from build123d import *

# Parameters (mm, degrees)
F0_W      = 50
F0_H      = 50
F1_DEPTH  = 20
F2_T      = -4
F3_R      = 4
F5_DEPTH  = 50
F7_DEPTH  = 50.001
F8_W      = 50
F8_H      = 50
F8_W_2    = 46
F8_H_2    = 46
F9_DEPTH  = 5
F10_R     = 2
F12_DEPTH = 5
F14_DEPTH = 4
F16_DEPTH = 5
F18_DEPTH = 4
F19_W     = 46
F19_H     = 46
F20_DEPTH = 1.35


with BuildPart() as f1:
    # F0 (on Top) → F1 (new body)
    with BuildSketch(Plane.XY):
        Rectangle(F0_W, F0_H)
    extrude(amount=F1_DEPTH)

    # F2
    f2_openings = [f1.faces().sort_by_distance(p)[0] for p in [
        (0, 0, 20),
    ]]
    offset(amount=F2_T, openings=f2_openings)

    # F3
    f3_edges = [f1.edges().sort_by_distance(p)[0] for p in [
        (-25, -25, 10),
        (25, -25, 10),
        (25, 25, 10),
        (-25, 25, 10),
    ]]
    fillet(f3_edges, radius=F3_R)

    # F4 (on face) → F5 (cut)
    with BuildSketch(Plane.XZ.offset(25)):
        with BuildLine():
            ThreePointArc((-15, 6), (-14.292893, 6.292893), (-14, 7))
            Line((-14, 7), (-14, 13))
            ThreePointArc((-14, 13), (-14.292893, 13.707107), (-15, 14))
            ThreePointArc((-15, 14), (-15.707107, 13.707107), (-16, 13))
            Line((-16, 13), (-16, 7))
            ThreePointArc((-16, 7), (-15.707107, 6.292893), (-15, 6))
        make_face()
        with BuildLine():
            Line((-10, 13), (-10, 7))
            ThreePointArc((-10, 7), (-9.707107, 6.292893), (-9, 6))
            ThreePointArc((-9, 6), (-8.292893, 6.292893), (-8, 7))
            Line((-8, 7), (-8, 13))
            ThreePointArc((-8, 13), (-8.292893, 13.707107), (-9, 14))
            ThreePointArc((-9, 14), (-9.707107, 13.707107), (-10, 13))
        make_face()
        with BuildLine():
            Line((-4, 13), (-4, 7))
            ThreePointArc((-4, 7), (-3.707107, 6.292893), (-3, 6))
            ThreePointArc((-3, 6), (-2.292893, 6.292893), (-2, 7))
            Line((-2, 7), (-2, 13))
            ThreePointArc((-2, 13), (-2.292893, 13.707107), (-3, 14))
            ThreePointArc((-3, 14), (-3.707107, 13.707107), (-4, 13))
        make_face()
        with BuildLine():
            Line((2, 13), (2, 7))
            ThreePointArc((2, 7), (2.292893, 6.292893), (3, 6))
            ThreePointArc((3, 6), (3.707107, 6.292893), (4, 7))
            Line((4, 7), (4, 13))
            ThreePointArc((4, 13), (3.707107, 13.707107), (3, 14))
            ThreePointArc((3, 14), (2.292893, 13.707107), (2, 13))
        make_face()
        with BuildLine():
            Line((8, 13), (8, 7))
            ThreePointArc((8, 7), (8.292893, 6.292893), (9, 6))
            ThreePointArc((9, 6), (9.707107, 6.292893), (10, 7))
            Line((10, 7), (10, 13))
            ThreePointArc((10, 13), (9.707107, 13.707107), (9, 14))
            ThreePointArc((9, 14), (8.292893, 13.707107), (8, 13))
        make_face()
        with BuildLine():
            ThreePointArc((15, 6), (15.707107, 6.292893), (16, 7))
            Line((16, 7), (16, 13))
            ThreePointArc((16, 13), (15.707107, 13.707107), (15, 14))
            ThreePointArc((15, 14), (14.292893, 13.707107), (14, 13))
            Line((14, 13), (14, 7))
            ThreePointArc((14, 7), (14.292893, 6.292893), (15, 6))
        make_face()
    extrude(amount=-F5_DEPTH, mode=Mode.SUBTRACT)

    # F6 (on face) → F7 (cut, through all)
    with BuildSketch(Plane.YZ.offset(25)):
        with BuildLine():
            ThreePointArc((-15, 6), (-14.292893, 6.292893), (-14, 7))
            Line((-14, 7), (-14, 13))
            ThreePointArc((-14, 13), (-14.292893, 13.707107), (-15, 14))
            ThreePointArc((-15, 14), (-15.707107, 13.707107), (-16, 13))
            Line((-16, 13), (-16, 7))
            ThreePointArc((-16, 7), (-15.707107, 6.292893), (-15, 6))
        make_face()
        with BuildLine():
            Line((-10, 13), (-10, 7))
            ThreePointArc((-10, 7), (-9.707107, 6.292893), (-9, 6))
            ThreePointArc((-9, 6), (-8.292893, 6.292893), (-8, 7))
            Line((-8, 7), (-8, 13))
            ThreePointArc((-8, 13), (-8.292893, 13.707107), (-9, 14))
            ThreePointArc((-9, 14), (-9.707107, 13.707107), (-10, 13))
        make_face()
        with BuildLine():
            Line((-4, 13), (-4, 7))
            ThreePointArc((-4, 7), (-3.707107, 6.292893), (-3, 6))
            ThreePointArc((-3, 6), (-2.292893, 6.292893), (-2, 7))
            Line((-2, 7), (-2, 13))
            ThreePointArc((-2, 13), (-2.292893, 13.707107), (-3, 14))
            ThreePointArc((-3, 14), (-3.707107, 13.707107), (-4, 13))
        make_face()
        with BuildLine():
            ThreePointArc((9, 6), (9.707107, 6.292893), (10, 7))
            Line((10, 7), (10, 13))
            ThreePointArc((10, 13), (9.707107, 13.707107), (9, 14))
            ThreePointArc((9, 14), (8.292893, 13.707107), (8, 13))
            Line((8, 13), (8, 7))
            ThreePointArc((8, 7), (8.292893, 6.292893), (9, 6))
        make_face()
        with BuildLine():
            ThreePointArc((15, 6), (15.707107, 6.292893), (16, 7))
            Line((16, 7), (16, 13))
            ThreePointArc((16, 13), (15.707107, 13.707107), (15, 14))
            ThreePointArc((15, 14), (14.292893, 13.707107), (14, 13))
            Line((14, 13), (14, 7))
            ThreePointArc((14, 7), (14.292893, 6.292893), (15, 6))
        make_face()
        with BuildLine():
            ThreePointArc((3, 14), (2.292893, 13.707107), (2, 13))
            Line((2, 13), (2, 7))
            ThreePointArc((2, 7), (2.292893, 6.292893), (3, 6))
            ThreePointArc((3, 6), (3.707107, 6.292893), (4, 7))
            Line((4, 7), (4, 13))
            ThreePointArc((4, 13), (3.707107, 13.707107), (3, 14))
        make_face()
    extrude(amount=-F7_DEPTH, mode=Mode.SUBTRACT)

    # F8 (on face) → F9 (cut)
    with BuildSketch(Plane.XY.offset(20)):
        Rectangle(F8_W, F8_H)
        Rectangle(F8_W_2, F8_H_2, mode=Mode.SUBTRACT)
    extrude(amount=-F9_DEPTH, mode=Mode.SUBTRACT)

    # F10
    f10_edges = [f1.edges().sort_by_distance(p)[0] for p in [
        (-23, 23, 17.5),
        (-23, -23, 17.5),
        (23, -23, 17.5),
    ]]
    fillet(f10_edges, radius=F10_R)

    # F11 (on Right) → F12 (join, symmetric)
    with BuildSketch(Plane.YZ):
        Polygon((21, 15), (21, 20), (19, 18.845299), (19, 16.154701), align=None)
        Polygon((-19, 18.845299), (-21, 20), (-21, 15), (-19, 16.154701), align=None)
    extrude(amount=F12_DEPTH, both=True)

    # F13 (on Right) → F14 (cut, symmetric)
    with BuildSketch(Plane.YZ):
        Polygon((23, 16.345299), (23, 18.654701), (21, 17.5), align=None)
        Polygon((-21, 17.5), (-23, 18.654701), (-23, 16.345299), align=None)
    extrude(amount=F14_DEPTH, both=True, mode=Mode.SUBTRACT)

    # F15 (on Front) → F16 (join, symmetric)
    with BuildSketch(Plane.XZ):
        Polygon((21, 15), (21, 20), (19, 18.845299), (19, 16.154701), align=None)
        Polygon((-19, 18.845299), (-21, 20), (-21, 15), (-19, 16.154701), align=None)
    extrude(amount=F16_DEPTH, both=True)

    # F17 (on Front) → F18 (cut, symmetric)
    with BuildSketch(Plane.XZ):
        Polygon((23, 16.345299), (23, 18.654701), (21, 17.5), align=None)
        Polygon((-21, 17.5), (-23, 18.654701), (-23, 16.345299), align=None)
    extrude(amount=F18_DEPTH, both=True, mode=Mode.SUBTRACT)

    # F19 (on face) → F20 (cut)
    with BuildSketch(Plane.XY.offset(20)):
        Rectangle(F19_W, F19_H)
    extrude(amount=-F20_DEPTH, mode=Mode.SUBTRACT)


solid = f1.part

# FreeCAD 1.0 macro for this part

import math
import FreeCAD as App
import Part
import Sketcher

V = App.Vector
Q = App.Units.Quantity


def edges_at(feature, points):
    """Names of the edges that pass closest to the given points."""
    edges = feature.Shape.Edges
    near = lambda p: min(range(len(edges)), key=lambda i: edges[i].distToShape(Part.Vertex(*p))[0])
    return sorted({f"Edge{near(p) + 1}" for p in points})


def faces_at(feature, points):
    """Names of the faces that lie closest to the given points."""
    faces = feature.Shape.Faces
    near = lambda p: min(range(len(faces)), key=lambda i: faces[i].distToShape(Part.Vertex(*p))[0])
    return sorted({f"Face{near(p) + 1}" for p in points})


def add_polygon(sketch, points):
    """Adds a closed chain of lines whose ends are joined by coincident constraints."""
    first, n = sketch.GeometryCount, len(points)
    for a, b in zip(points, points[1:] + points[:1]):
        sketch.addGeometry(Part.LineSegment(App.Vector(*a, 0), App.Vector(*b, 0)), False)
    for i in range(n):
        sketch.addConstraint(Sketcher.Constraint("Coincident", first + i, 2, first + (i + 1) % n, 1))

doc = App.newDocument("Part")
body = doc.addObject("PartDesign::Body", "Body")

# Sketch on XY plane
sketch1 = body.newObject("Sketcher::SketchObject", "Sketch")
sketch1.AttachmentSupport = (doc.getObject("XY_Plane"), [""])
sketch1.MapMode = "FlatFace"
add_polygon(sketch1, [(-25, 25), (-25, -25), (25, -25), (25, 25)])  # lines 0-3
sketch1.addConstraint(Sketcher.Constraint("Vertical", 0))
sketch1.addConstraint(Sketcher.Constraint("Horizontal", 1))
sketch1.addConstraint(Sketcher.Constraint("Vertical", 2))
sketch1.addConstraint(Sketcher.Constraint("Horizontal", 3))
sketch1.addConstraint(Sketcher.Constraint("Symmetric", 0, 2, 2, 2, -1, 1))
sketch1.addConstraint(Sketcher.Constraint("Equal", 3, 0))
sketch1.addConstraint(Sketcher.Constraint("DistanceX", 1, 1, 1, 2, 50.0))
pad1 = body.newObject("PartDesign::Pad", "Pad")
pad1.Profile = sketch1
pad1.Length = 20
doc.recompute()

thickness = body.newObject("PartDesign::Thickness", "Thickness")
thickness.Base = (pad1, faces_at(pad1, [(0, 0, 20)]))
thickness.Value = 4
thickness.Reversed = True
thickness.Join = "Arc"
doc.recompute()

fillet = body.newObject("PartDesign::Fillet", "Fillet")
fillet.Base = (thickness, edges_at(thickness, [
    (-25, -25, 10),
    (25, -25, 10),
    (25, 25, 10),
    (-25, 25, 10),
]))
fillet.Radius = 4

# Sketch on XZ plane
sketch2 = body.newObject("Sketcher::SketchObject", "Sketch001")
sketch2.AttachmentSupport = (doc.getObject("XZ_Plane"), [""])
sketch2.MapMode = "FlatFace"
sketch2.AttachmentOffset = App.Placement(V(0, 0, 25), App.Rotation())
sketch2.addGeometry(Part.ArcOfCircle(Part.Circle(V(-15, 7, 0), V(0, 0, 1), 1), math.radians(-90), math.radians(0)), False)
sketch2.addGeometry(Part.LineSegment(V(-14, 7, 0), V(-14, 13, 0)), False)
sketch2.addGeometry(Part.ArcOfCircle(Part.Circle(V(-15, 13, 0), V(0, 0, 1), 1), math.radians(0), math.radians(90)), False)
sketch2.addGeometry(Part.ArcOfCircle(Part.Circle(V(-15, 13, 0), V(0, 0, 1), 1), math.radians(90), math.radians(180)), False)
sketch2.addGeometry(Part.LineSegment(V(-16, 13, 0), V(-16, 7, 0)), False)
sketch2.addGeometry(Part.ArcOfCircle(Part.Circle(V(-15, 7, 0), V(0, 0, 1), 1), math.radians(180), math.radians(270)), False)
sketch2.addGeometry(Part.LineSegment(V(-10, 13, 0), V(-10, 7, 0)), False)
sketch2.addGeometry(Part.ArcOfCircle(Part.Circle(V(-9, 7, 0), V(0, 0, 1), 1), math.radians(180), math.radians(270)), False)
sketch2.addGeometry(Part.ArcOfCircle(Part.Circle(V(-9, 7, 0), V(0, 0, 1), 1), math.radians(-90), math.radians(0)), False)
sketch2.addGeometry(Part.LineSegment(V(-8, 7, 0), V(-8, 13, 0)), False)
sketch2.addGeometry(Part.ArcOfCircle(Part.Circle(V(-9, 13, 0), V(0, 0, 1), 1), math.radians(0), math.radians(90)), False)
sketch2.addGeometry(Part.ArcOfCircle(Part.Circle(V(-9, 13, 0), V(0, 0, 1), 1), math.radians(90), math.radians(180)), False)
sketch2.addGeometry(Part.LineSegment(V(-4, 13, 0), V(-4, 7, 0)), False)
sketch2.addGeometry(Part.ArcOfCircle(Part.Circle(V(-3, 7, 0), V(0, 0, 1), 1), math.radians(180), math.radians(270)), False)
sketch2.addGeometry(Part.ArcOfCircle(Part.Circle(V(-3, 7, 0), V(0, 0, 1), 1), math.radians(-90), math.radians(0)), False)
sketch2.addGeometry(Part.LineSegment(V(-2, 7, 0), V(-2, 13, 0)), False)
sketch2.addGeometry(Part.ArcOfCircle(Part.Circle(V(-3, 13, 0), V(0, 0, 1), 1), math.radians(0), math.radians(90)), False)
sketch2.addGeometry(Part.ArcOfCircle(Part.Circle(V(-3, 13, 0), V(0, 0, 1), 1), math.radians(90), math.radians(180)), False)
sketch2.addGeometry(Part.LineSegment(V(2, 13, 0), V(2, 7, 0)), False)
sketch2.addGeometry(Part.ArcOfCircle(Part.Circle(V(3, 7, 0), V(0, 0, 1), 1), math.radians(180), math.radians(270)), False)
sketch2.addGeometry(Part.ArcOfCircle(Part.Circle(V(3, 7, 0), V(0, 0, 1), 1), math.radians(-90), math.radians(0)), False)
sketch2.addGeometry(Part.LineSegment(V(4, 7, 0), V(4, 13, 0)), False)
sketch2.addGeometry(Part.ArcOfCircle(Part.Circle(V(3, 13, 0), V(0, 0, 1), 1), math.radians(0), math.radians(90)), False)
sketch2.addGeometry(Part.ArcOfCircle(Part.Circle(V(3, 13, 0), V(0, 0, 1), 1), math.radians(90), math.radians(180)), False)
sketch2.addGeometry(Part.LineSegment(V(8, 13, 0), V(8, 7, 0)), False)
sketch2.addGeometry(Part.ArcOfCircle(Part.Circle(V(9, 7, 0), V(0, 0, 1), 1), math.radians(180), math.radians(270)), False)
sketch2.addGeometry(Part.ArcOfCircle(Part.Circle(V(9, 7, 0), V(0, 0, 1), 1), math.radians(-90), math.radians(0)), False)
sketch2.addGeometry(Part.LineSegment(V(10, 7, 0), V(10, 13, 0)), False)
sketch2.addGeometry(Part.ArcOfCircle(Part.Circle(V(9, 13, 0), V(0, 0, 1), 1), math.radians(0), math.radians(90)), False)
sketch2.addGeometry(Part.ArcOfCircle(Part.Circle(V(9, 13, 0), V(0, 0, 1), 1), math.radians(90), math.radians(180)), False)
sketch2.addGeometry(Part.ArcOfCircle(Part.Circle(V(15, 7, 0), V(0, 0, 1), 1), math.radians(-90), math.radians(0)), False)
sketch2.addGeometry(Part.LineSegment(V(16, 7, 0), V(16, 13, 0)), False)
sketch2.addGeometry(Part.ArcOfCircle(Part.Circle(V(15, 13, 0), V(0, 0, 1), 1), math.radians(0), math.radians(90)), False)
sketch2.addGeometry(Part.ArcOfCircle(Part.Circle(V(15, 13, 0), V(0, 0, 1), 1), math.radians(90), math.radians(180)), False)
sketch2.addGeometry(Part.LineSegment(V(14, 13, 0), V(14, 7, 0)), False)
sketch2.addGeometry(Part.ArcOfCircle(Part.Circle(V(15, 7, 0), V(0, 0, 1), 1), math.radians(180), math.radians(270)), False)
sketch2.addConstraint(Sketcher.Constraint("Tangent", 0, 2, 1, 1))
sketch2.addConstraint(Sketcher.Constraint("Tangent", 1, 2, 2, 1))
sketch2.addConstraint(Sketcher.Constraint("Tangent", 2, 2, 3, 1))
sketch2.addConstraint(Sketcher.Constraint("Tangent", 3, 2, 4, 1))
sketch2.addConstraint(Sketcher.Constraint("Tangent", 4, 2, 5, 1))
sketch2.addConstraint(Sketcher.Constraint("Tangent", 5, 2, 0, 1))
sketch2.addConstraint(Sketcher.Constraint("Tangent", 6, 2, 7, 1))
sketch2.addConstraint(Sketcher.Constraint("Tangent", 7, 2, 8, 1))
sketch2.addConstraint(Sketcher.Constraint("Tangent", 8, 2, 9, 1))
sketch2.addConstraint(Sketcher.Constraint("Tangent", 9, 2, 10, 1))
sketch2.addConstraint(Sketcher.Constraint("Tangent", 10, 2, 11, 1))
sketch2.addConstraint(Sketcher.Constraint("Tangent", 11, 2, 6, 1))
sketch2.addConstraint(Sketcher.Constraint("Tangent", 12, 2, 13, 1))
sketch2.addConstraint(Sketcher.Constraint("Tangent", 13, 2, 14, 1))
sketch2.addConstraint(Sketcher.Constraint("Tangent", 14, 2, 15, 1))
sketch2.addConstraint(Sketcher.Constraint("Tangent", 15, 2, 16, 1))
sketch2.addConstraint(Sketcher.Constraint("Tangent", 16, 2, 17, 1))
sketch2.addConstraint(Sketcher.Constraint("Tangent", 17, 2, 12, 1))
sketch2.addConstraint(Sketcher.Constraint("Tangent", 18, 2, 19, 1))
sketch2.addConstraint(Sketcher.Constraint("Tangent", 19, 2, 20, 1))
sketch2.addConstraint(Sketcher.Constraint("Tangent", 20, 2, 21, 1))
sketch2.addConstraint(Sketcher.Constraint("Tangent", 21, 2, 22, 1))
sketch2.addConstraint(Sketcher.Constraint("Tangent", 22, 2, 23, 1))
sketch2.addConstraint(Sketcher.Constraint("Tangent", 23, 2, 18, 1))
sketch2.addConstraint(Sketcher.Constraint("Tangent", 24, 2, 25, 1))
sketch2.addConstraint(Sketcher.Constraint("Tangent", 25, 2, 26, 1))
sketch2.addConstraint(Sketcher.Constraint("Tangent", 26, 2, 27, 1))
sketch2.addConstraint(Sketcher.Constraint("Tangent", 27, 2, 28, 1))
sketch2.addConstraint(Sketcher.Constraint("Tangent", 28, 2, 29, 1))
sketch2.addConstraint(Sketcher.Constraint("Tangent", 29, 2, 24, 1))
sketch2.addConstraint(Sketcher.Constraint("Tangent", 30, 2, 31, 1))
sketch2.addConstraint(Sketcher.Constraint("Tangent", 31, 2, 32, 1))
sketch2.addConstraint(Sketcher.Constraint("Tangent", 32, 2, 33, 1))
sketch2.addConstraint(Sketcher.Constraint("Tangent", 33, 2, 34, 1))
sketch2.addConstraint(Sketcher.Constraint("Tangent", 34, 2, 35, 1))
sketch2.addConstraint(Sketcher.Constraint("Tangent", 35, 2, 30, 1))
sketch2.addConstraint(Sketcher.Constraint("Vertical", 1))
sketch2.addConstraint(Sketcher.Constraint("Vertical", 4))
sketch2.addConstraint(Sketcher.Constraint("Vertical", 6))
sketch2.addConstraint(Sketcher.Constraint("Vertical", 9))
sketch2.addConstraint(Sketcher.Constraint("Vertical", 12))
sketch2.addConstraint(Sketcher.Constraint("Vertical", 15))
sketch2.addConstraint(Sketcher.Constraint("Vertical", 18))
sketch2.addConstraint(Sketcher.Constraint("Vertical", 21))
sketch2.addConstraint(Sketcher.Constraint("Vertical", 24))
sketch2.addConstraint(Sketcher.Constraint("Vertical", 27))
sketch2.addConstraint(Sketcher.Constraint("Vertical", 31))
sketch2.addConstraint(Sketcher.Constraint("Vertical", 34))
sketch2.addConstraint(Sketcher.Constraint("Equal", 0, 2))
sketch2.addConstraint(Sketcher.Constraint("Equal", 2, 3))
sketch2.addConstraint(Sketcher.Constraint("Equal", 5, 7))
sketch2.addConstraint(Sketcher.Constraint("Equal", 7, 8))
sketch2.addConstraint(Sketcher.Constraint("Equal", 8, 10))
sketch2.addConstraint(Sketcher.Constraint("Equal", 11, 13))
sketch2.addConstraint(Sketcher.Constraint("Equal", 13, 14))
sketch2.addConstraint(Sketcher.Constraint("Equal", 14, 16))
sketch2.addConstraint(Sketcher.Constraint("Equal", 17, 19))
sketch2.addConstraint(Sketcher.Constraint("Equal", 19, 20))
sketch2.addConstraint(Sketcher.Constraint("Equal", 20, 22))
sketch2.addConstraint(Sketcher.Constraint("Equal", 23, 25))
sketch2.addConstraint(Sketcher.Constraint("Equal", 25, 26))
sketch2.addConstraint(Sketcher.Constraint("Equal", 26, 28))
sketch2.addConstraint(Sketcher.Constraint("Equal", 29, 30))
sketch2.addConstraint(Sketcher.Constraint("Equal", 30, 32))
sketch2.addConstraint(Sketcher.Constraint("Equal", 32, 33))
sketch2.addConstraint(Sketcher.Constraint("Symmetric", 13, 3, 19, 3, -2))
sketch2.addConstraint(Sketcher.Constraint("Symmetric", 7, 3, 25, 3, -2))
sketch2.addConstraint(Sketcher.Constraint("Symmetric", 0, 3, 30, 3, -2))
sketch2.addConstraint(Sketcher.Constraint("Symmetric", 16, 2, 22, 2, -2))
sketch2.addConstraint(Sketcher.Constraint("Symmetric", 10, 2, 28, 2, -2))
sketch2.addConstraint(Sketcher.Constraint("Symmetric", 2, 2, 32, 2, -2))
sketch2.addConstraint(Sketcher.Constraint("Horizontal", 5, 3, 7, 3))
sketch2.addConstraint(Sketcher.Constraint("Horizontal", 3, 3, 10, 3))
sketch2.addConstraint(Sketcher.Constraint("Horizontal", 8, 3, 13, 3))
sketch2.addConstraint(Sketcher.Constraint("Horizontal", 11, 3, 16, 3))
sketch2.addConstraint(Sketcher.Constraint("Vertical", 5, 3, 2, 2))
sketch2.addConstraint(Sketcher.Constraint("Vertical", 2, 2, 5, 2))
sketch2.addConstraint(Sketcher.Constraint("Vertical", 11, 3, 7, 2))
sketch2.addConstraint(Sketcher.Constraint("Vertical", 7, 2, 10, 2))
sketch2.addConstraint(Sketcher.Constraint("Vertical", 17, 3, 13, 2))
sketch2.addConstraint(Sketcher.Constraint("Vertical", 13, 2, 16, 2))
sketch2.addConstraint(Sketcher.Constraint("Vertical", 23, 3, 19, 2))
sketch2.addConstraint(Sketcher.Constraint("Vertical", 29, 3, 25, 2))
sketch2.addConstraint(Sketcher.Constraint("Vertical", 32, 2, 35, 2))
sketch2.addConstraint(Sketcher.Constraint("Radius", 0, 0.999999))
sketch2.addConstraint(Sketcher.Constraint("DistanceY", 1, 1, 1, 2, 6.0))
sketch2.addConstraint(Sketcher.Constraint("DistanceX", 0, 3, -1, 1, 14.999999))
sketch2.addConstraint(Sketcher.Constraint("DistanceY", -1, 1, 0, 3, 6.999999))
sketch2.addConstraint(Sketcher.Constraint("DistanceX", 7, 3, -1, 1, 9.000001))
sketch2.addConstraint(Sketcher.Constraint("DistanceX", 13, 3, -1, 1, 3.000001))
pocket1 = body.newObject("PartDesign::Pocket", "Pocket")
pocket1.Profile = sketch2
pocket1.Length = 50

# Sketch on YZ plane
sketch3 = body.newObject("Sketcher::SketchObject", "Sketch002")
sketch3.AttachmentSupport = (doc.getObject("YZ_Plane"), [""])
sketch3.MapMode = "FlatFace"
sketch3.AttachmentOffset = App.Placement(V(0, 0, 25), App.Rotation())
sketch3.addGeometry(Part.ArcOfCircle(Part.Circle(V(-15, 7, 0), V(0, 0, 1), 1), math.radians(-90), math.radians(0)), False)
sketch3.addGeometry(Part.LineSegment(V(-14, 7, 0), V(-14, 13, 0)), False)
sketch3.addGeometry(Part.ArcOfCircle(Part.Circle(V(-15, 13, 0), V(0, 0, 1), 1), math.radians(0), math.radians(90)), False)
sketch3.addGeometry(Part.ArcOfCircle(Part.Circle(V(-15, 13, 0), V(0, 0, 1), 1), math.radians(90), math.radians(180)), False)
sketch3.addGeometry(Part.LineSegment(V(-16, 13, 0), V(-16, 7, 0)), False)
sketch3.addGeometry(Part.ArcOfCircle(Part.Circle(V(-15, 7, 0), V(0, 0, 1), 1), math.radians(180), math.radians(270)), False)
sketch3.addGeometry(Part.LineSegment(V(-10, 13, 0), V(-10, 7, 0)), False)
sketch3.addGeometry(Part.ArcOfCircle(Part.Circle(V(-9, 7, 0), V(0, 0, 1), 1), math.radians(180), math.radians(270)), False)
sketch3.addGeometry(Part.ArcOfCircle(Part.Circle(V(-9, 7, 0), V(0, 0, 1), 1), math.radians(-90), math.radians(0)), False)
sketch3.addGeometry(Part.LineSegment(V(-8, 7, 0), V(-8, 13, 0)), False)
sketch3.addGeometry(Part.ArcOfCircle(Part.Circle(V(-9, 13, 0), V(0, 0, 1), 1), math.radians(0), math.radians(90)), False)
sketch3.addGeometry(Part.ArcOfCircle(Part.Circle(V(-9, 13, 0), V(0, 0, 1), 1), math.radians(90), math.radians(180)), False)
sketch3.addGeometry(Part.LineSegment(V(-4, 13, 0), V(-4, 7, 0)), False)
sketch3.addGeometry(Part.ArcOfCircle(Part.Circle(V(-3, 7, 0), V(0, 0, 1), 1), math.radians(180), math.radians(270)), False)
sketch3.addGeometry(Part.ArcOfCircle(Part.Circle(V(-3, 7, 0), V(0, 0, 1), 1), math.radians(-90), math.radians(0)), False)
sketch3.addGeometry(Part.LineSegment(V(-2, 7, 0), V(-2, 13, 0)), False)
sketch3.addGeometry(Part.ArcOfCircle(Part.Circle(V(-3, 13, 0), V(0, 0, 1), 1), math.radians(0), math.radians(90)), False)
sketch3.addGeometry(Part.ArcOfCircle(Part.Circle(V(-3, 13, 0), V(0, 0, 1), 1), math.radians(90), math.radians(180)), False)
sketch3.addGeometry(Part.ArcOfCircle(Part.Circle(V(9, 7, 0), V(0, 0, 1), 1), math.radians(-90), math.radians(0)), False)
sketch3.addGeometry(Part.LineSegment(V(10, 7, 0), V(10, 13, 0)), False)
sketch3.addGeometry(Part.ArcOfCircle(Part.Circle(V(9, 13, 0), V(0, 0, 1), 1), math.radians(0), math.radians(90)), False)
sketch3.addGeometry(Part.ArcOfCircle(Part.Circle(V(9, 13, 0), V(0, 0, 1), 1), math.radians(90), math.radians(180)), False)
sketch3.addGeometry(Part.LineSegment(V(8, 13, 0), V(8, 7, 0)), False)
sketch3.addGeometry(Part.ArcOfCircle(Part.Circle(V(9, 7, 0), V(0, 0, 1), 1), math.radians(180), math.radians(270)), False)
sketch3.addGeometry(Part.ArcOfCircle(Part.Circle(V(15, 7, 0), V(0, 0, 1), 1), math.radians(-90), math.radians(0)), False)
sketch3.addGeometry(Part.LineSegment(V(16, 7, 0), V(16, 13, 0)), False)
sketch3.addGeometry(Part.ArcOfCircle(Part.Circle(V(15, 13, 0), V(0, 0, 1), 1), math.radians(0), math.radians(90)), False)
sketch3.addGeometry(Part.ArcOfCircle(Part.Circle(V(15, 13, 0), V(0, 0, 1), 1), math.radians(90), math.radians(180)), False)
sketch3.addGeometry(Part.LineSegment(V(14, 13, 0), V(14, 7, 0)), False)
sketch3.addGeometry(Part.ArcOfCircle(Part.Circle(V(15, 7, 0), V(0, 0, 1), 1), math.radians(180), math.radians(270)), False)
sketch3.addGeometry(Part.ArcOfCircle(Part.Circle(V(3, 13, 0), V(0, 0, 1), 1), math.radians(90), math.radians(180)), False)
sketch3.addGeometry(Part.LineSegment(V(2, 13, 0), V(2, 7, 0)), False)
sketch3.addGeometry(Part.ArcOfCircle(Part.Circle(V(3, 7, 0), V(0, 0, 1), 1), math.radians(180), math.radians(270)), False)
sketch3.addGeometry(Part.ArcOfCircle(Part.Circle(V(3, 7, 0), V(0, 0, 1), 1), math.radians(-90), math.radians(0)), False)
sketch3.addGeometry(Part.LineSegment(V(4, 7, 0), V(4, 13, 0)), False)
sketch3.addGeometry(Part.ArcOfCircle(Part.Circle(V(3, 13, 0), V(0, 0, 1), 1), math.radians(0), math.radians(90)), False)
sketch3.addConstraint(Sketcher.Constraint("Tangent", 0, 2, 1, 1))
sketch3.addConstraint(Sketcher.Constraint("Tangent", 1, 2, 2, 1))
sketch3.addConstraint(Sketcher.Constraint("Tangent", 2, 2, 3, 1))
sketch3.addConstraint(Sketcher.Constraint("Tangent", 3, 2, 4, 1))
sketch3.addConstraint(Sketcher.Constraint("Tangent", 4, 2, 5, 1))
sketch3.addConstraint(Sketcher.Constraint("Tangent", 5, 2, 0, 1))
sketch3.addConstraint(Sketcher.Constraint("Tangent", 6, 2, 7, 1))
sketch3.addConstraint(Sketcher.Constraint("Tangent", 7, 2, 8, 1))
sketch3.addConstraint(Sketcher.Constraint("Tangent", 8, 2, 9, 1))
sketch3.addConstraint(Sketcher.Constraint("Tangent", 9, 2, 10, 1))
sketch3.addConstraint(Sketcher.Constraint("Tangent", 10, 2, 11, 1))
sketch3.addConstraint(Sketcher.Constraint("Tangent", 11, 2, 6, 1))
sketch3.addConstraint(Sketcher.Constraint("Tangent", 12, 2, 13, 1))
sketch3.addConstraint(Sketcher.Constraint("Tangent", 13, 2, 14, 1))
sketch3.addConstraint(Sketcher.Constraint("Tangent", 14, 2, 15, 1))
sketch3.addConstraint(Sketcher.Constraint("Tangent", 15, 2, 16, 1))
sketch3.addConstraint(Sketcher.Constraint("Tangent", 16, 2, 17, 1))
sketch3.addConstraint(Sketcher.Constraint("Tangent", 17, 2, 12, 1))
sketch3.addConstraint(Sketcher.Constraint("Tangent", 18, 2, 19, 1))
sketch3.addConstraint(Sketcher.Constraint("Tangent", 19, 2, 20, 1))
sketch3.addConstraint(Sketcher.Constraint("Tangent", 20, 2, 21, 1))
sketch3.addConstraint(Sketcher.Constraint("Tangent", 21, 2, 22, 1))
sketch3.addConstraint(Sketcher.Constraint("Tangent", 22, 2, 23, 1))
sketch3.addConstraint(Sketcher.Constraint("Tangent", 23, 2, 18, 1))
sketch3.addConstraint(Sketcher.Constraint("Tangent", 24, 2, 25, 1))
sketch3.addConstraint(Sketcher.Constraint("Tangent", 25, 2, 26, 1))
sketch3.addConstraint(Sketcher.Constraint("Tangent", 26, 2, 27, 1))
sketch3.addConstraint(Sketcher.Constraint("Tangent", 27, 2, 28, 1))
sketch3.addConstraint(Sketcher.Constraint("Tangent", 28, 2, 29, 1))
sketch3.addConstraint(Sketcher.Constraint("Tangent", 29, 2, 24, 1))
sketch3.addConstraint(Sketcher.Constraint("Tangent", 30, 2, 31, 1))
sketch3.addConstraint(Sketcher.Constraint("Tangent", 31, 2, 32, 1))
sketch3.addConstraint(Sketcher.Constraint("Tangent", 32, 2, 33, 1))
sketch3.addConstraint(Sketcher.Constraint("Tangent", 33, 2, 34, 1))
sketch3.addConstraint(Sketcher.Constraint("Tangent", 34, 2, 35, 1))
sketch3.addConstraint(Sketcher.Constraint("Tangent", 35, 2, 30, 1))
sketch3.addConstraint(Sketcher.Constraint("Vertical", 1))
sketch3.addConstraint(Sketcher.Constraint("Vertical", 4))
sketch3.addConstraint(Sketcher.Constraint("Vertical", 6))
sketch3.addConstraint(Sketcher.Constraint("Vertical", 9))
sketch3.addConstraint(Sketcher.Constraint("Vertical", 12))
sketch3.addConstraint(Sketcher.Constraint("Vertical", 15))
sketch3.addConstraint(Sketcher.Constraint("Vertical", 19))
sketch3.addConstraint(Sketcher.Constraint("Vertical", 22))
sketch3.addConstraint(Sketcher.Constraint("Vertical", 25))
sketch3.addConstraint(Sketcher.Constraint("Vertical", 28))
sketch3.addConstraint(Sketcher.Constraint("Vertical", 31))
sketch3.addConstraint(Sketcher.Constraint("Vertical", 34))
sketch3.addConstraint(Sketcher.Constraint("Equal", 0, 2))
sketch3.addConstraint(Sketcher.Constraint("Equal", 2, 3))
sketch3.addConstraint(Sketcher.Constraint("Equal", 5, 7))
sketch3.addConstraint(Sketcher.Constraint("Equal", 7, 8))
sketch3.addConstraint(Sketcher.Constraint("Equal", 8, 10))
sketch3.addConstraint(Sketcher.Constraint("Equal", 11, 13))
sketch3.addConstraint(Sketcher.Constraint("Equal", 13, 14))
sketch3.addConstraint(Sketcher.Constraint("Equal", 14, 16))
sketch3.addConstraint(Sketcher.Constraint("Equal", 17, 18))
sketch3.addConstraint(Sketcher.Constraint("Equal", 18, 20))
sketch3.addConstraint(Sketcher.Constraint("Equal", 20, 21))
sketch3.addConstraint(Sketcher.Constraint("Equal", 23, 24))
sketch3.addConstraint(Sketcher.Constraint("Equal", 24, 26))
sketch3.addConstraint(Sketcher.Constraint("Equal", 26, 27))
sketch3.addConstraint(Sketcher.Constraint("Equal", 29, 30))
sketch3.addConstraint(Sketcher.Constraint("Equal", 30, 32))
sketch3.addConstraint(Sketcher.Constraint("Equal", 32, 33))
sketch3.addConstraint(Sketcher.Constraint("Symmetric", 7, 3, 18, 3, -2))
sketch3.addConstraint(Sketcher.Constraint("Symmetric", 0, 3, 24, 3, -2))
sketch3.addConstraint(Sketcher.Constraint("Symmetric", 16, 3, 30, 3, -2))
sketch3.addConstraint(Sketcher.Constraint("Symmetric", 10, 2, 20, 2, -2))
sketch3.addConstraint(Sketcher.Constraint("Symmetric", 2, 2, 26, 2, -2))
sketch3.addConstraint(Sketcher.Constraint("Symmetric", 13, 2, 32, 2, -2))
sketch3.addConstraint(Sketcher.Constraint("Horizontal", 5, 3, 7, 3))
sketch3.addConstraint(Sketcher.Constraint("Horizontal", 3, 3, 10, 3))
sketch3.addConstraint(Sketcher.Constraint("Horizontal", 8, 3, 13, 3))
sketch3.addConstraint(Sketcher.Constraint("Horizontal", 11, 3, 16, 3))
sketch3.addConstraint(Sketcher.Constraint("Vertical", 5, 3, 2, 2))
sketch3.addConstraint(Sketcher.Constraint("Vertical", 2, 2, 5, 2))
sketch3.addConstraint(Sketcher.Constraint("Vertical", 11, 3, 7, 2))
sketch3.addConstraint(Sketcher.Constraint("Vertical", 7, 2, 10, 2))
sketch3.addConstraint(Sketcher.Constraint("Vertical", 17, 3, 13, 2))
sketch3.addConstraint(Sketcher.Constraint("Vertical", 13, 2, 16, 2))
sketch3.addConstraint(Sketcher.Constraint("Vertical", 20, 2, 23, 2))
sketch3.addConstraint(Sketcher.Constraint("Vertical", 26, 2, 29, 2))
sketch3.addConstraint(Sketcher.Constraint("Vertical", 32, 2, 35, 2))
sketch3.addConstraint(Sketcher.Constraint("Radius", 0, 0.999999))
sketch3.addConstraint(Sketcher.Constraint("DistanceY", 1, 1, 1, 2, 6.0))
sketch3.addConstraint(Sketcher.Constraint("DistanceX", 0, 3, -1, 1, 14.999999))
sketch3.addConstraint(Sketcher.Constraint("DistanceY", -1, 1, 0, 3, 6.999999))
sketch3.addConstraint(Sketcher.Constraint("DistanceX", 7, 3, -1, 1, 9.000001))
sketch3.addConstraint(Sketcher.Constraint("DistanceX", 13, 3, -1, 1, 3.000001))
pocket2 = body.newObject("PartDesign::Pocket", "Pocket001")
pocket2.Profile = sketch3
pocket2.Type = "ThroughAll"

# Sketch on XY plane
sketch4 = body.newObject("Sketcher::SketchObject", "Sketch003")
sketch4.AttachmentSupport = (doc.getObject("XY_Plane"), [""])
sketch4.MapMode = "FlatFace"
sketch4.AttachmentOffset = App.Placement(V(0, 0, 20), App.Rotation())
add_polygon(sketch4, [(-25, 25), (-25, -25), (25, -25), (25, 25)])  # lines 0-3
add_polygon(sketch4, [(23, -23), (-23, -23), (-23, 23), (23, 23)])  # lines 4-7
sketch4.addConstraint(Sketcher.Constraint("Vertical", 0))
sketch4.addConstraint(Sketcher.Constraint("Horizontal", 1))
sketch4.addConstraint(Sketcher.Constraint("Vertical", 2))
sketch4.addConstraint(Sketcher.Constraint("Horizontal", 3))
sketch4.addConstraint(Sketcher.Constraint("Horizontal", 4))
sketch4.addConstraint(Sketcher.Constraint("Vertical", 5))
sketch4.addConstraint(Sketcher.Constraint("Horizontal", 6))
sketch4.addConstraint(Sketcher.Constraint("Vertical", 7))
sketch4.addConstraint(Sketcher.Constraint("Symmetric", 0, 2, 2, 2, -1, 1))
sketch4.addConstraint(Sketcher.Constraint("Symmetric", 4, 2, 6, 2, -1, 1))
sketch4.addConstraint(Sketcher.Constraint("Equal", 3, 0))
sketch4.addConstraint(Sketcher.Constraint("Equal", 6, 5))
sketch4.addConstraint(Sketcher.Constraint("DistanceX", 1, 1, 1, 2, 50.0))
sketch4.addConstraint(Sketcher.Constraint("DistanceX", 4, 2, 4, 1, 46.0))
pocket3 = body.newObject("PartDesign::Pocket", "Pocket002")
pocket3.Profile = sketch4
pocket3.Length = 5
doc.recompute()

fillet2 = body.newObject("PartDesign::Fillet", "Fillet001")
fillet2.Base = (pocket3, edges_at(pocket3, [(-23, 23, 17.5), (-23, -23, 17.5), (23, -23, 17.5)]))
fillet2.Radius = 2

# Sketch on YZ plane
sketch5 = body.newObject("Sketcher::SketchObject", "Sketch004")
sketch5.AttachmentSupport = (doc.getObject("YZ_Plane"), [""])
sketch5.MapMode = "FlatFace"
add_polygon(sketch5, [(21, 15), (21, 20), (19, 18.8), (19, 16.2)])  # lines 0-3
add_polygon(sketch5, [(-19, 18.8), (-21, 20), (-21, 15), (-19, 16.2)])  # lines 4-7
sketch5.addConstraint(Sketcher.Constraint("Vertical", 0))
sketch5.addConstraint(Sketcher.Constraint("Vertical", 2))
sketch5.addConstraint(Sketcher.Constraint("Vertical", 5))
sketch5.addConstraint(Sketcher.Constraint("Vertical", 7))
sketch5.addConstraint(Sketcher.Constraint("Symmetric", 0, 2, 4, 2, -2))
sketch5.addConstraint(Sketcher.Constraint("Symmetric", 2, 2, 6, 2, -2))
sketch5.addConstraint(Sketcher.Constraint("Parallel", 3, 4))
sketch5.addConstraint(Sketcher.Constraint("Parallel", 1, 6))
sketch5.addConstraint(Sketcher.Constraint("Horizontal", 3, 2, 5, 2))
sketch5.addConstraint(Sketcher.Constraint("DistanceY", 0, 1, 0, 2, 5.0))
sketch5.addConstraint(Sketcher.Constraint("Angle", 1, Q("-149.99999 deg")))
sketch5.addConstraint(Sketcher.Constraint("DistanceX", -1, 1, 0, 2, 21.0))
sketch5.addConstraint(Sketcher.Constraint("DistanceY", -1, 1, 0, 2, 20.0))
sketch5.addConstraint(Sketcher.Constraint("DistanceX", -1, 1, 1, 2, 19.0))
pad2 = body.newObject("PartDesign::Pad", "Pad001")
pad2.Profile = sketch5
pad2.Length = 10
pad2.Midplane = True

# Sketch on YZ plane
sketch6 = body.newObject("Sketcher::SketchObject", "Sketch005")
sketch6.AttachmentSupport = (doc.getObject("YZ_Plane"), [""])
sketch6.MapMode = "FlatFace"
add_polygon(sketch6, [(23, 16.3), (23, 18.7), (21, 17.5)])  # lines 0-2
add_polygon(sketch6, [(-21, 17.5), (-23, 18.7), (-23, 16.3)])  # lines 3-5
sketch6.addConstraint(Sketcher.Constraint("Vertical", 0))
sketch6.addConstraint(Sketcher.Constraint("Vertical", 4))
sketch6.addConstraint(Sketcher.Constraint("Symmetric", 0, 2, 3, 2, -2))
sketch6.addConstraint(Sketcher.Constraint("Symmetric", 1, 2, 5, 2, -2))
sketch6.addConstraint(Sketcher.Constraint("Parallel", 2, 3))
sketch6.addConstraint(Sketcher.Constraint("Parallel", 1, 5))
sketch6.addConstraint(Sketcher.Constraint("Angle", 1, Q("-149.99999 deg")))
sketch6.addConstraint(Sketcher.Constraint("DistanceX", -1, 1, 0, 2, 23.0))
sketch6.addConstraint(Sketcher.Constraint("DistanceX", -1, 1, 1, 2, 21.0))
sketch6.addConstraint(Sketcher.Constraint("DistanceY", -1, 1, 1, 2, 17.5))
pocket4 = body.newObject("PartDesign::Pocket", "Pocket003")
pocket4.Profile = sketch6
pocket4.Length = 8
pocket4.Midplane = True

# Sketch on XZ plane
sketch7 = body.newObject("Sketcher::SketchObject", "Sketch006")
sketch7.AttachmentSupport = (doc.getObject("XZ_Plane"), [""])
sketch7.MapMode = "FlatFace"
add_polygon(sketch7, [(21, 15), (21, 20), (19, 18.8), (19, 16.2)])  # lines 0-3
add_polygon(sketch7, [(-19, 18.8), (-21, 20), (-21, 15), (-19, 16.2)])  # lines 4-7
sketch7.addConstraint(Sketcher.Constraint("Vertical", 0))
sketch7.addConstraint(Sketcher.Constraint("Vertical", 2))
sketch7.addConstraint(Sketcher.Constraint("Vertical", 5))
sketch7.addConstraint(Sketcher.Constraint("Vertical", 7))
sketch7.addConstraint(Sketcher.Constraint("Symmetric", 0, 2, 4, 2, -2))
sketch7.addConstraint(Sketcher.Constraint("Symmetric", 2, 2, 6, 2, -2))
sketch7.addConstraint(Sketcher.Constraint("Parallel", 3, 4))
sketch7.addConstraint(Sketcher.Constraint("Parallel", 1, 6))
sketch7.addConstraint(Sketcher.Constraint("Horizontal", 3, 2, 5, 2))
sketch7.addConstraint(Sketcher.Constraint("DistanceY", 0, 1, 0, 2, 5.0))
sketch7.addConstraint(Sketcher.Constraint("Angle", 1, Q("-149.99999 deg")))
sketch7.addConstraint(Sketcher.Constraint("DistanceX", -1, 1, 0, 2, 21.0))
sketch7.addConstraint(Sketcher.Constraint("DistanceY", -1, 1, 0, 2, 20.0))
sketch7.addConstraint(Sketcher.Constraint("DistanceX", -1, 1, 1, 2, 19.0))
pad3 = body.newObject("PartDesign::Pad", "Pad002")
pad3.Profile = sketch7
pad3.Length = 10
pad3.Midplane = True

# Sketch on XZ plane
sketch8 = body.newObject("Sketcher::SketchObject", "Sketch007")
sketch8.AttachmentSupport = (doc.getObject("XZ_Plane"), [""])
sketch8.MapMode = "FlatFace"
add_polygon(sketch8, [(23, 16.3), (23, 18.7), (21, 17.5)])  # lines 0-2
add_polygon(sketch8, [(-21, 17.5), (-23, 18.7), (-23, 16.3)])  # lines 3-5
sketch8.addConstraint(Sketcher.Constraint("Vertical", 0))
sketch8.addConstraint(Sketcher.Constraint("Vertical", 4))
sketch8.addConstraint(Sketcher.Constraint("Symmetric", 0, 2, 3, 2, -2))
sketch8.addConstraint(Sketcher.Constraint("Symmetric", 1, 2, 5, 2, -2))
sketch8.addConstraint(Sketcher.Constraint("Parallel", 2, 3))
sketch8.addConstraint(Sketcher.Constraint("Parallel", 1, 5))
sketch8.addConstraint(Sketcher.Constraint("Angle", 1, Q("-149.99999 deg")))
sketch8.addConstraint(Sketcher.Constraint("DistanceX", -1, 1, 0, 2, 23.0))
sketch8.addConstraint(Sketcher.Constraint("DistanceX", -1, 1, 1, 2, 21.0))
sketch8.addConstraint(Sketcher.Constraint("DistanceY", -1, 1, 1, 2, 17.5))
pocket5 = body.newObject("PartDesign::Pocket", "Pocket004")
pocket5.Profile = sketch8
pocket5.Length = 8
pocket5.Midplane = True

# Sketch on XY plane
sketch9 = body.newObject("Sketcher::SketchObject", "Sketch008")
sketch9.AttachmentSupport = (doc.getObject("XY_Plane"), [""])
sketch9.MapMode = "FlatFace"
sketch9.AttachmentOffset = App.Placement(V(0, 0, 20), App.Rotation())
add_polygon(sketch9, [(-23, 23), (-23, -23), (23, -23), (23, 23)])  # lines 0-3
sketch9.addConstraint(Sketcher.Constraint("Vertical", 0))
sketch9.addConstraint(Sketcher.Constraint("Horizontal", 1))
sketch9.addConstraint(Sketcher.Constraint("Vertical", 2))
sketch9.addConstraint(Sketcher.Constraint("Horizontal", 3))
sketch9.addConstraint(Sketcher.Constraint("Symmetric", 0, 2, 2, 2, -1, 1))
sketch9.addConstraint(Sketcher.Constraint("Equal", 3, 0))
sketch9.addConstraint(Sketcher.Constraint("DistanceX", 1, 1, 1, 2, 46.0))
pocket6 = body.newObject("PartDesign::Pocket", "Pocket005")
pocket6.Profile = sketch9
pocket6.Length = 1.35

doc.recompute()
